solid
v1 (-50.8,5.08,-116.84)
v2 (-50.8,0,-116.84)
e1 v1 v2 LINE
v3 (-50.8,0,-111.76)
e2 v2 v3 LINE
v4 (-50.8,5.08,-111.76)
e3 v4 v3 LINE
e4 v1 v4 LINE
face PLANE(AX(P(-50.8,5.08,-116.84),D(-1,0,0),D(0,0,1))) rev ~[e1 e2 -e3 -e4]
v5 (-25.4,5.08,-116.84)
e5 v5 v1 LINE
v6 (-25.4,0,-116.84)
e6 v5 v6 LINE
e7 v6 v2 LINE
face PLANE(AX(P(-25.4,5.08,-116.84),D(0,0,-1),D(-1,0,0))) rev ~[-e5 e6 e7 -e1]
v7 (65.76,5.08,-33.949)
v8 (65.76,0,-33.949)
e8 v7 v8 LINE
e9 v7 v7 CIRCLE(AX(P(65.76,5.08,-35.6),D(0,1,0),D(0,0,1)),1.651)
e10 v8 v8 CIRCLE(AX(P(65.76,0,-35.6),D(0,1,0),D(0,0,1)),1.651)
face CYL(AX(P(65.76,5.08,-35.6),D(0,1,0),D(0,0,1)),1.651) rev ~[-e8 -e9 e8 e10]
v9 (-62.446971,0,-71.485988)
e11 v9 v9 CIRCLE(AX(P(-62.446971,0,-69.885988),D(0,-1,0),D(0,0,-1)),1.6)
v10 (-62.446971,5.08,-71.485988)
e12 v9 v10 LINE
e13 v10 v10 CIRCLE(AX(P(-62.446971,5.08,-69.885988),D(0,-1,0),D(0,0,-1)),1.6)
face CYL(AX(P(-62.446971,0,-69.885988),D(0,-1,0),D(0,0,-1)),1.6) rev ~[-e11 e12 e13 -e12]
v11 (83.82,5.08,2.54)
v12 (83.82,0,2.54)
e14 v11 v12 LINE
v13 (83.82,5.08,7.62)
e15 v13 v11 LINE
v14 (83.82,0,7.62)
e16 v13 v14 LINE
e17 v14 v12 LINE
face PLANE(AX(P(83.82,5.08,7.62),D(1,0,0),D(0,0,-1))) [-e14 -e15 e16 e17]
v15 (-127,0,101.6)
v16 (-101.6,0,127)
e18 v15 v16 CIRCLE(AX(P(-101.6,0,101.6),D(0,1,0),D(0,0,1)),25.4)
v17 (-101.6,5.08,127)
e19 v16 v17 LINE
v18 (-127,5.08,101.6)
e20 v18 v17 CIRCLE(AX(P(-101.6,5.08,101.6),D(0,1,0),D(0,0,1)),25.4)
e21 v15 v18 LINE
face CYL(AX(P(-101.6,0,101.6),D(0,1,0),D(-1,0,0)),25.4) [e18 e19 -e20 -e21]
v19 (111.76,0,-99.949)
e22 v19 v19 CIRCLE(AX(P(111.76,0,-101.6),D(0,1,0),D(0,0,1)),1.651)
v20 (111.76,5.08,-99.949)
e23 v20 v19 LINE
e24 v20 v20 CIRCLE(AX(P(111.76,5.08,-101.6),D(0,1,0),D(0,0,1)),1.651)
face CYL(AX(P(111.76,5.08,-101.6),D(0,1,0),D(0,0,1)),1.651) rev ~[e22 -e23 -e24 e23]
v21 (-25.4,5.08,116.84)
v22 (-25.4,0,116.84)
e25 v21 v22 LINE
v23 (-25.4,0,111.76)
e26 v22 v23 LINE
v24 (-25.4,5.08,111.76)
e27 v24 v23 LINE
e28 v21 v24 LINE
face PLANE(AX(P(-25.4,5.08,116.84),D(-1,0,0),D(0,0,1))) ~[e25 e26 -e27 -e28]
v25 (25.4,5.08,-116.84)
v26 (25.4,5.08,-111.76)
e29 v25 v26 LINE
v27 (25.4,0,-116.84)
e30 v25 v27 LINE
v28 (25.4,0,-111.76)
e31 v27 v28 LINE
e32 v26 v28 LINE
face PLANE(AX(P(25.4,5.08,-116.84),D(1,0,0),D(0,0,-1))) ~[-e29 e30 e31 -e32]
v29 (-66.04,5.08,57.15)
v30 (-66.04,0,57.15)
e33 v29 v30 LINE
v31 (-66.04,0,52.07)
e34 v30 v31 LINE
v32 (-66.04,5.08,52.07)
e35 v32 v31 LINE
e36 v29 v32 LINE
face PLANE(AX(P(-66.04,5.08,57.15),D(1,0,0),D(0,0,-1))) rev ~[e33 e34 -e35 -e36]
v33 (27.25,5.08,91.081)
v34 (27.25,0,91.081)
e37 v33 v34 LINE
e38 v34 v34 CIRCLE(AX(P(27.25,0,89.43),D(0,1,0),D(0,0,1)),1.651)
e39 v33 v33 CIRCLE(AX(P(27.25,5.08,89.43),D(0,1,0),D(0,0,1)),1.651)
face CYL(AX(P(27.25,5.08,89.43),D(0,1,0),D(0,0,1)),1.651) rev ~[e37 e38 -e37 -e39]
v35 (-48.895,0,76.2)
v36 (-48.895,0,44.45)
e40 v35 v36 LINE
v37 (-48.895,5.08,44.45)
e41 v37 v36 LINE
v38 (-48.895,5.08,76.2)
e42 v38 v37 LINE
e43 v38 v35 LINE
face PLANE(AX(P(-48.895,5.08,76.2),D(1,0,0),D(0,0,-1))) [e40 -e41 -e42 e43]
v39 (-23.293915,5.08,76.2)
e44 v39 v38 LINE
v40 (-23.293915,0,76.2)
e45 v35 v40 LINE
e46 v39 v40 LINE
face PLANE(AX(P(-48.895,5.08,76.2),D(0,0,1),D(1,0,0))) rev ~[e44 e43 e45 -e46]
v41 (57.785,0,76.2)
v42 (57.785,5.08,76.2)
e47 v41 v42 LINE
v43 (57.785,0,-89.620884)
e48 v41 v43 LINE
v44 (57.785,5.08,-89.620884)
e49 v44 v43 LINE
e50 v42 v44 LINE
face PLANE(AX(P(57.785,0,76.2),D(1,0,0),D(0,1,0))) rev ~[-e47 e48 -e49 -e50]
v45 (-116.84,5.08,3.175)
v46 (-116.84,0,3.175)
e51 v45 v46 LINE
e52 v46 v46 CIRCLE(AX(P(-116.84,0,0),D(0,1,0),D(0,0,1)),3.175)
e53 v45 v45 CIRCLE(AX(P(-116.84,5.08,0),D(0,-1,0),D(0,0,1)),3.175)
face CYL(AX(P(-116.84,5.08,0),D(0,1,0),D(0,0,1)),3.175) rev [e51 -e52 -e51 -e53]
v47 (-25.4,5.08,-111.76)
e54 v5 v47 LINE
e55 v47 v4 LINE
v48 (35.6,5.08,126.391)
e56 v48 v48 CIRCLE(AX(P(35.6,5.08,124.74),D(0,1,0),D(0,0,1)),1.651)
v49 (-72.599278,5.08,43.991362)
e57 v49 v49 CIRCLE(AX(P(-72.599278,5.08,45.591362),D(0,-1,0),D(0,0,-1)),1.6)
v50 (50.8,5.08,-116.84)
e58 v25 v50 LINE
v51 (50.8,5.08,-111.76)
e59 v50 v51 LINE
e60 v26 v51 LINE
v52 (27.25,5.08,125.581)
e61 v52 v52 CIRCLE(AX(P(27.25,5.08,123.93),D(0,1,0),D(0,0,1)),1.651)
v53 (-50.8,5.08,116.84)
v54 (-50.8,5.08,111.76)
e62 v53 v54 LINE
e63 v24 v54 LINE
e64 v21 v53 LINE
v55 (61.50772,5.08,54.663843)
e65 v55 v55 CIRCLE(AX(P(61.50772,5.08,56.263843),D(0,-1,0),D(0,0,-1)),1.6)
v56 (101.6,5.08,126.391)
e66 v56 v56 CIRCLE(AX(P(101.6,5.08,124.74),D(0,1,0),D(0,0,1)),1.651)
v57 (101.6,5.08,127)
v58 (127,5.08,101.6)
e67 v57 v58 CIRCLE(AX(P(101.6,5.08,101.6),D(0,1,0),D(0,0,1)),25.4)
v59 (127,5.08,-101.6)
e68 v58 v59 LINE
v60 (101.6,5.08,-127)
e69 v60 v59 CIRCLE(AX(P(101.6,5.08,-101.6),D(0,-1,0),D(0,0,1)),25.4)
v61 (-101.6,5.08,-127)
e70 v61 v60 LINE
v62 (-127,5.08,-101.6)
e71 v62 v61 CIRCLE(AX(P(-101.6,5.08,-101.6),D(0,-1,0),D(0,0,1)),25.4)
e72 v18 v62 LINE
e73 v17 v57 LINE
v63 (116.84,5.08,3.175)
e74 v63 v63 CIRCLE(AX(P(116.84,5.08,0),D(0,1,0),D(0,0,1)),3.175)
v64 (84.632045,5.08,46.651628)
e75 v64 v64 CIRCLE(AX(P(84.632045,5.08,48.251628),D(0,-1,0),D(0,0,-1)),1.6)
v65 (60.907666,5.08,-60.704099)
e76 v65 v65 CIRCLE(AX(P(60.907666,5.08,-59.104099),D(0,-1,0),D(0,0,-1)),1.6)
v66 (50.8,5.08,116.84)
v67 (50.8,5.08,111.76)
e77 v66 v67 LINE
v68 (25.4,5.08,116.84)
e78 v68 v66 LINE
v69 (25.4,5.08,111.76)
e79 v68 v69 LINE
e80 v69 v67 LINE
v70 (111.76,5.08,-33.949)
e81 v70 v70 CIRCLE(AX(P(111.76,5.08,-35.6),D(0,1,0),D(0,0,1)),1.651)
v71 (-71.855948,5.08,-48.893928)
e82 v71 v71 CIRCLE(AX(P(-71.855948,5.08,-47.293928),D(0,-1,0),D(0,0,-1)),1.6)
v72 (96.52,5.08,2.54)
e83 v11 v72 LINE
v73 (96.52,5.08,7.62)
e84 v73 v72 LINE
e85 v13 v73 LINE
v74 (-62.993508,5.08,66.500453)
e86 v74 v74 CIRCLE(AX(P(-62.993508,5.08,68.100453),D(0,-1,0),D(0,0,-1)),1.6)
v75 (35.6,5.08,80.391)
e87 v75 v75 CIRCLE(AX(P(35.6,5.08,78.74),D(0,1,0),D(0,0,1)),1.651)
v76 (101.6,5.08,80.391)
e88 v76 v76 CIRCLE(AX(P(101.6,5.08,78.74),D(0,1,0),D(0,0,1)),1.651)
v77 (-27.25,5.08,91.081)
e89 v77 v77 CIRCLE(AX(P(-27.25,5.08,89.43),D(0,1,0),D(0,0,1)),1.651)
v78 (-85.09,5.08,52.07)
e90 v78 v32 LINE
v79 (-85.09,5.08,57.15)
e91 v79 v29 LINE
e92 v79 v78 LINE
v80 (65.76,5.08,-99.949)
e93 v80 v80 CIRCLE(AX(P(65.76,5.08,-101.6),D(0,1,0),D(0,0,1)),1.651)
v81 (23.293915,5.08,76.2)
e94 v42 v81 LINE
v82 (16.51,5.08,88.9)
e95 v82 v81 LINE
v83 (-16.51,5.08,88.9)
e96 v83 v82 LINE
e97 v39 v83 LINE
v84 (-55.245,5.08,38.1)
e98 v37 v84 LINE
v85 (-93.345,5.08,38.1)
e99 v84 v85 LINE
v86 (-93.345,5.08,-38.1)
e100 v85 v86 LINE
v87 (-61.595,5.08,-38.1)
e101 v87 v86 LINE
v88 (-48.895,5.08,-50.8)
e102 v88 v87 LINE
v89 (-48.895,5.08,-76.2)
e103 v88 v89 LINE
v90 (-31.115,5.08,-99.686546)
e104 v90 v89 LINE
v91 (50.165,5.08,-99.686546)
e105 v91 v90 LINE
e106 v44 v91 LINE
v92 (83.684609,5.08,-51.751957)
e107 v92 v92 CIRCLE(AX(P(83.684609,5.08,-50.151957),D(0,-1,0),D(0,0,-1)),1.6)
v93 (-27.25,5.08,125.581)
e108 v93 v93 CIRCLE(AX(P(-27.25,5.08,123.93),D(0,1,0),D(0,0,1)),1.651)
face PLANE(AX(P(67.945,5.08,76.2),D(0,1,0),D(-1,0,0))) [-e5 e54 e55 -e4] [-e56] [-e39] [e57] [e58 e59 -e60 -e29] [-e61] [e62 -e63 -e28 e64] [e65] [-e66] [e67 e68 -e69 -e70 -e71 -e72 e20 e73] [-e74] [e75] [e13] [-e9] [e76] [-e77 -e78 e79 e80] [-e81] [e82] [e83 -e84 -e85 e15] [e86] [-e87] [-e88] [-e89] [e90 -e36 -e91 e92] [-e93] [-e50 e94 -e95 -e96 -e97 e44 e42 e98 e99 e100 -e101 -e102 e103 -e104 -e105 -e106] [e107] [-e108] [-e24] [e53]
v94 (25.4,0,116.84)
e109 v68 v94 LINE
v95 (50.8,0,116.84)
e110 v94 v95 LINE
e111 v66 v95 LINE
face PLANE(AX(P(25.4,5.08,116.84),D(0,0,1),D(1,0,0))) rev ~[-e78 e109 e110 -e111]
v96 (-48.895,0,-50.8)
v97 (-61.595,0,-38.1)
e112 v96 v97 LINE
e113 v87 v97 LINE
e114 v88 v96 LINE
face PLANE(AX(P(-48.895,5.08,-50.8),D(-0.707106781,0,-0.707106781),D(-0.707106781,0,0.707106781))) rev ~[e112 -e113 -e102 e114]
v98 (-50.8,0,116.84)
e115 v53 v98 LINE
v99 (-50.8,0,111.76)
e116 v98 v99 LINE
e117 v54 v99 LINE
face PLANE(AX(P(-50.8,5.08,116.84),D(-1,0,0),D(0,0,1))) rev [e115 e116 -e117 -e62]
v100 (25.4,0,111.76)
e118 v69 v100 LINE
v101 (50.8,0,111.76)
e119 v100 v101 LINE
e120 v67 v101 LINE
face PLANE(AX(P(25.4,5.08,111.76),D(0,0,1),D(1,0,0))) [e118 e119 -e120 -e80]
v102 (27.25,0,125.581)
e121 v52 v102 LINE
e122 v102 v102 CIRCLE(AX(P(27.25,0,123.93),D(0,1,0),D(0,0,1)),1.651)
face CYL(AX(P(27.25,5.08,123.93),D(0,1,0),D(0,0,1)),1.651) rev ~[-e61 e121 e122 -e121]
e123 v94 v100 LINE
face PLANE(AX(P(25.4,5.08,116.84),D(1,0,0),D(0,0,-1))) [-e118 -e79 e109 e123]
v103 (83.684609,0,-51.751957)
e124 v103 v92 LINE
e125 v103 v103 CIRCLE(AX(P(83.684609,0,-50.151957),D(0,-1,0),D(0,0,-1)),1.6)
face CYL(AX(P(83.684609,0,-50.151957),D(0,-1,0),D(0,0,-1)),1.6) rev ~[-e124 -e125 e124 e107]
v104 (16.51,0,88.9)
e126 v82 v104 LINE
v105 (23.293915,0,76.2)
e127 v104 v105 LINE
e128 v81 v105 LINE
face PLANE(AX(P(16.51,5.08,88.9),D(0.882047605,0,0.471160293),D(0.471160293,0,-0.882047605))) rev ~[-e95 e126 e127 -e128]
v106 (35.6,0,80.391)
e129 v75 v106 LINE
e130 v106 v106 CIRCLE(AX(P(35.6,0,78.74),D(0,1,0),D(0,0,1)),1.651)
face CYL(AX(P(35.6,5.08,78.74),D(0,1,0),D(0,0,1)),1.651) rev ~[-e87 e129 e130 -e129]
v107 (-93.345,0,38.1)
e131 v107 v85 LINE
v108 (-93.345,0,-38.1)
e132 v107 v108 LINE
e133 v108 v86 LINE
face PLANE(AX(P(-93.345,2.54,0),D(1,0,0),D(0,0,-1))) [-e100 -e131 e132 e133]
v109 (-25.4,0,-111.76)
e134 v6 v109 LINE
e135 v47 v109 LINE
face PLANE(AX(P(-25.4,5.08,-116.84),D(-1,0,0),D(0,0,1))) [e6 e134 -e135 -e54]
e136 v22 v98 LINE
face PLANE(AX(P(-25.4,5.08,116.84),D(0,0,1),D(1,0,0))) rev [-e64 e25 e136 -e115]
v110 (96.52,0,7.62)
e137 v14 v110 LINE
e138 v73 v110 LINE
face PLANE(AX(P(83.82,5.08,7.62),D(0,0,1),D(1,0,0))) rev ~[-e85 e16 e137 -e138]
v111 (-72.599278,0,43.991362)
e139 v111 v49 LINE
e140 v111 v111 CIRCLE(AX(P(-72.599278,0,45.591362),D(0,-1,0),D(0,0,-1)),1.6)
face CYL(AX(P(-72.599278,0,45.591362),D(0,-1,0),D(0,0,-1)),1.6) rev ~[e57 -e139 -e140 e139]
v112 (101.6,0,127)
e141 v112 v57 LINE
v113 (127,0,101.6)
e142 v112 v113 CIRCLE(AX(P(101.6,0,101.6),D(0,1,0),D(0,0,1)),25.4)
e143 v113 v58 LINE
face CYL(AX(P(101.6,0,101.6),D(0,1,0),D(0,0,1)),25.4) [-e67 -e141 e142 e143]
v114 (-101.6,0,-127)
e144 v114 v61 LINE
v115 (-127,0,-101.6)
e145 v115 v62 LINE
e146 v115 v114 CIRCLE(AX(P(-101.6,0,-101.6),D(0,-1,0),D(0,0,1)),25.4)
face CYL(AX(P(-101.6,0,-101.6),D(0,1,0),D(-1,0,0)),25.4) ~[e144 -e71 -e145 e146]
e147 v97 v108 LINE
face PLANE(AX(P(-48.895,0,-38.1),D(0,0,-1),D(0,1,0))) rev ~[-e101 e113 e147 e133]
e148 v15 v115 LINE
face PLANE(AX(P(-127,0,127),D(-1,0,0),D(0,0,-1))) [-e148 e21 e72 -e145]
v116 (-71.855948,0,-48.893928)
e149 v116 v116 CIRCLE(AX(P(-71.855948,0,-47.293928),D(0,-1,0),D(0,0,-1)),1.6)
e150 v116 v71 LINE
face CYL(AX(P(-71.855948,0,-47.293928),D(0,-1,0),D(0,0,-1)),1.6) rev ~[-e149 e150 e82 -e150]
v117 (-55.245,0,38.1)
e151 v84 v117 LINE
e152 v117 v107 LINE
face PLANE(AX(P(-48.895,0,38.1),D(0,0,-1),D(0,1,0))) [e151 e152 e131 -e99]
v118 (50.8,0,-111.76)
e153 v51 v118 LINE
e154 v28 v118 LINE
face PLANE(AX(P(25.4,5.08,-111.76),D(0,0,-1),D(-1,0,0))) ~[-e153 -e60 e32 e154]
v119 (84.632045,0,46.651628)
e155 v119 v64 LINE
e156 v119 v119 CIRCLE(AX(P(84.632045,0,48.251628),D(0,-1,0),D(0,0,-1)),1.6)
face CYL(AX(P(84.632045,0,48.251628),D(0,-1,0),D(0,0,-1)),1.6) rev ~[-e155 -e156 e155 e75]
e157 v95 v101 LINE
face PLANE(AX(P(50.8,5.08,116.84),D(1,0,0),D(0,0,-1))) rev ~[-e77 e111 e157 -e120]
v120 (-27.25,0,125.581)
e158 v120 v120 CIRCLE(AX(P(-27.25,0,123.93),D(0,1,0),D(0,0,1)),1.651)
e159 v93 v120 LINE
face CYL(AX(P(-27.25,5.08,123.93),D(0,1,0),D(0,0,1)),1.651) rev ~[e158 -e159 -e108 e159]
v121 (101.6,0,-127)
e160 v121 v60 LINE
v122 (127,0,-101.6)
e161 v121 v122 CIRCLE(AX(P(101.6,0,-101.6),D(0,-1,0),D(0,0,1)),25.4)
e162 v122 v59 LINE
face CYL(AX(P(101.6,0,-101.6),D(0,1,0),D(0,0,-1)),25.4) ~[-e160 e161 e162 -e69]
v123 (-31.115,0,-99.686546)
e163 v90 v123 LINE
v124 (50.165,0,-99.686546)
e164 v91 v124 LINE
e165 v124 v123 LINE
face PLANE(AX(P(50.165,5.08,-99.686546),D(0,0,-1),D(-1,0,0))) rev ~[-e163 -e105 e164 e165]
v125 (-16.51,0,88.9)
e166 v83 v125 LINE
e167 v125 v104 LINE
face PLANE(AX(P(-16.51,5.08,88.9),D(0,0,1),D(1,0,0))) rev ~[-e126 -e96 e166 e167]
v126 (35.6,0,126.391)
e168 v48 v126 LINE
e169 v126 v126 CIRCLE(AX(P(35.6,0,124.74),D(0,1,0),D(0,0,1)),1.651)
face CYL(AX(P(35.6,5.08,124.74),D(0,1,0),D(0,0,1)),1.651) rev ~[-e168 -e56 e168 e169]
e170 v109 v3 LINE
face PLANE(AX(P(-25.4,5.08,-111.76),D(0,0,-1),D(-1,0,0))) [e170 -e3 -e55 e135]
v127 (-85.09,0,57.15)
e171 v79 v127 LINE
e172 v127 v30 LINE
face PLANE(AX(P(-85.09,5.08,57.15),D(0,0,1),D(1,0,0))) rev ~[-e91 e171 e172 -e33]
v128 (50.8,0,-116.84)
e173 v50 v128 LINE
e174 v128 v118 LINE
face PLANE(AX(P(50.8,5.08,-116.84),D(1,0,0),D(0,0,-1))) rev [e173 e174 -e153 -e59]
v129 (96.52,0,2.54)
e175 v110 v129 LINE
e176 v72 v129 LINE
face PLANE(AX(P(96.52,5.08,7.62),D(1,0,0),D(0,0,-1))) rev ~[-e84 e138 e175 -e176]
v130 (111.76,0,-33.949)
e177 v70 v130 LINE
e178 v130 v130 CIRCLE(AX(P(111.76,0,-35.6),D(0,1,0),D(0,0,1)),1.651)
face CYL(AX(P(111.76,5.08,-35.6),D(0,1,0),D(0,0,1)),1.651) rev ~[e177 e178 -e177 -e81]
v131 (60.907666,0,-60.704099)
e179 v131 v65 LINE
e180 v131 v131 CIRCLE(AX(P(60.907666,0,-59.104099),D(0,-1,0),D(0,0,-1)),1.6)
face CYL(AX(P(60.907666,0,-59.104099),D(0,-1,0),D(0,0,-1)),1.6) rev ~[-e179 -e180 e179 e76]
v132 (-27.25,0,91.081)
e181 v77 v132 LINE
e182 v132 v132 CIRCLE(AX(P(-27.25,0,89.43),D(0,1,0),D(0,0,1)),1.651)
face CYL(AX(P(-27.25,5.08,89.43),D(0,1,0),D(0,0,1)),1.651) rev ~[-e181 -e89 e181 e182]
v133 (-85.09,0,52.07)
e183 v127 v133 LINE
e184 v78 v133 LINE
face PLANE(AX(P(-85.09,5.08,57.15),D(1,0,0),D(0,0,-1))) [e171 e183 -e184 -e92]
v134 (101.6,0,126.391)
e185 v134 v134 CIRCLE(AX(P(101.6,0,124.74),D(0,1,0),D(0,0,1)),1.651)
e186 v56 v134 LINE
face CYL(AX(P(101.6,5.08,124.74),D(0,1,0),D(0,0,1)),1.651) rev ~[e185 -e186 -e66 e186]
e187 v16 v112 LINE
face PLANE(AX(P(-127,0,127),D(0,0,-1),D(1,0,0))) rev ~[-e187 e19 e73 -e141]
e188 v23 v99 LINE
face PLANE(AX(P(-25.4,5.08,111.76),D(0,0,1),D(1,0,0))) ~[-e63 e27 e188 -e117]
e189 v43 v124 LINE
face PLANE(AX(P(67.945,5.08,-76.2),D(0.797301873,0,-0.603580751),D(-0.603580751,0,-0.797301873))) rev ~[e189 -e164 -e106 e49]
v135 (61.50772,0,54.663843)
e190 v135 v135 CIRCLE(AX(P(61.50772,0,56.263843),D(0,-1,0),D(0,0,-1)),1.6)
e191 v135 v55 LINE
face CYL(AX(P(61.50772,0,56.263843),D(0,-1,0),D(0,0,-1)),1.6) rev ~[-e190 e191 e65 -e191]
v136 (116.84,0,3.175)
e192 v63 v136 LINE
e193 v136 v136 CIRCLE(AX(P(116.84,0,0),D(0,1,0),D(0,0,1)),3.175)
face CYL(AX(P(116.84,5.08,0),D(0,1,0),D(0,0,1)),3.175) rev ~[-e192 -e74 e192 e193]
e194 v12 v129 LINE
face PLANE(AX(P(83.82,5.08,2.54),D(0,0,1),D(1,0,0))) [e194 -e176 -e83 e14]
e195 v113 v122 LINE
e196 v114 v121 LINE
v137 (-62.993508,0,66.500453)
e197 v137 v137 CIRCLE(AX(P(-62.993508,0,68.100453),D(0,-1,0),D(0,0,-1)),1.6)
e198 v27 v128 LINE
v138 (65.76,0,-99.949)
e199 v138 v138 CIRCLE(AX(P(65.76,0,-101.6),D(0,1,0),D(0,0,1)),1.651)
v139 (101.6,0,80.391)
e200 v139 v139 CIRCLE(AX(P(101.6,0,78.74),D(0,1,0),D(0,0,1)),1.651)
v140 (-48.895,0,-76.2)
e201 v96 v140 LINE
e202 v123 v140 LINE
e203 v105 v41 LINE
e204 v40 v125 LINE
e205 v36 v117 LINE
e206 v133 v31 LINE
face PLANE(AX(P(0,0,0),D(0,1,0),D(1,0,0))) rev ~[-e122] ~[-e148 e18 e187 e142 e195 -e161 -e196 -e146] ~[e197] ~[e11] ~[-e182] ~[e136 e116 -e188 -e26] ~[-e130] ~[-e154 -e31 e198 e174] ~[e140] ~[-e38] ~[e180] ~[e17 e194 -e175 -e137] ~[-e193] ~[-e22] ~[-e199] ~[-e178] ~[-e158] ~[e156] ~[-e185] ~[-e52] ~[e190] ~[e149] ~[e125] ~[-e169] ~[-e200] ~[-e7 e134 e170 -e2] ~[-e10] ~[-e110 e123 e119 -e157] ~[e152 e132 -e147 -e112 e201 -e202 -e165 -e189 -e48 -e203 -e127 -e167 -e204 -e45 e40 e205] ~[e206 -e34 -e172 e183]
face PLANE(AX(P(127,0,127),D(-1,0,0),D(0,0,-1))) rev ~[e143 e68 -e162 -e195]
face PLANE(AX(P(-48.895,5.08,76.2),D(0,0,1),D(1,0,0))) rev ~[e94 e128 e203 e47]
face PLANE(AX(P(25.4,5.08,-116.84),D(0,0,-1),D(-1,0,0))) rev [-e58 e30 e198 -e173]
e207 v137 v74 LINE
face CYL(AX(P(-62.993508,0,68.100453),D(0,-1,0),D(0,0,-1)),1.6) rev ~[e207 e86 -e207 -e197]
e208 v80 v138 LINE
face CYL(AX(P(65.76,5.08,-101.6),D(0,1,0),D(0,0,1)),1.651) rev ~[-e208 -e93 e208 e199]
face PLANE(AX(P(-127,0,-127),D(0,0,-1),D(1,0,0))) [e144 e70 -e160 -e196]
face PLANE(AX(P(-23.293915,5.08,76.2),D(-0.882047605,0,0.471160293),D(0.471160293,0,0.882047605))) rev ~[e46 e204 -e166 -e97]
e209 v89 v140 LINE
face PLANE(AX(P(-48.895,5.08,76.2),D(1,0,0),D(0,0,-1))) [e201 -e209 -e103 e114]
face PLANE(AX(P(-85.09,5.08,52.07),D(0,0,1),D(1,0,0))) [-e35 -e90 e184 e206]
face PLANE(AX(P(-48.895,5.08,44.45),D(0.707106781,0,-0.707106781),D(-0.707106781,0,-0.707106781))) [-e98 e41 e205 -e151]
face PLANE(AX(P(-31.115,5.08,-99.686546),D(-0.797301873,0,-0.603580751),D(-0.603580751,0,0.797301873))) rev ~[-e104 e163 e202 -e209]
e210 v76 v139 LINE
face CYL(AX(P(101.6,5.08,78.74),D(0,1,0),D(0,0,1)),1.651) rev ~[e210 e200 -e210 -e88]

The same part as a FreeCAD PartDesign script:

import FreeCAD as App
import Part
import Sketcher
Q = App.Units.Quantity


def edges_at(feature, points):
    """Names of the edges that pass closest to the given points."""
    edges = feature.Shape.Edges
    near = lambda p: min(range(len(edges)), key=lambda i: edges[i].distToShape(Part.Vertex(*p))[0])
    return sorted({f"Edge{near(p) + 1}" for p in points})

doc = App.newDocument("Part")
body = doc.addObject("PartDesign::Body", "Body")

# Sketch on XZ plane
sketch1 = body.newObject("Sketcher::SketchObject", "Sketch")
sketch1.AttachmentSupport = (doc.getObject("XZ_Plane"), [""])
sketch1.MapMode = "FlatFace"
sketch1.addGeometry([
    Part.LineSegment(App.Vector(-127, -127, 0), App.Vector(-127, 127, 0)),
    Part.LineSegment(App.Vector(-127, 127, 0), App.Vector(127, 127, 0)),
    Part.LineSegment(App.Vector(127, 127, 0), App.Vector(127, -127, 0)),
    Part.LineSegment(App.Vector(127, -127, 0), App.Vector(-127, -127, 0)),
], False)
sketch1.addConstraint([
    Sketcher.Constraint("Coincident", 0, 2, 1, 1),
    Sketcher.Constraint("Coincident", 1, 2, 2, 1),
    Sketcher.Constraint("Coincident", 2, 2, 3, 1),
    Sketcher.Constraint("Coincident", 3, 2, 0, 1),
    Sketcher.Constraint("Vertical", 0),
    Sketcher.Constraint("Horizontal", 1),
    Sketcher.Constraint("Vertical", 2),
    Sketcher.Constraint("Horizontal", 3),
    Sketcher.Constraint("Symmetric", 0, 2, 2, 2, -1, 1),
    Sketcher.Constraint("Equal", 3, 0),
    Sketcher.Constraint("DistanceX", 1, 1, 1, 2, Q("10 in")),
])
pad1 = body.newObject("PartDesign::Pad", "Pad")
pad1.Profile = sketch1
pad1.Length = Q("0.2 in")
pad1.Reversed = True

# Sketch on XZ plane
sketch2 = body.newObject("Sketcher::SketchObject", "Sketch001")
sketch2.AttachmentSupport = (doc.getObject("XZ_Plane"), [""])
sketch2.MapMode = "FlatFace"
sketch2.AttachmentOffset = App.Placement(App.Vector(0, 0, -0.2 * 25.4), App.Rotation())
sketch2.addGeometry([
    Part.LineSegment(App.Vector(-49, -76, 0), App.Vector(-49, 76, 0)),
    Part.LineSegment(App.Vector(-49, 76, 0), App.Vector(49, 76, 0)),
    Part.LineSegment(App.Vector(49, 76, 0), App.Vector(49, -76, 0)),
    Part.LineSegment(App.Vector(49, -76, 0), App.Vector(-49, -76, 0)),
], False)
sketch2.addConstraint([
    Sketcher.Constraint("Coincident", 0, 2, 1, 1),
    Sketcher.Constraint("Coincident", 1, 2, 2, 1),
    Sketcher.Constraint("Coincident", 2, 2, 3, 1),
    Sketcher.Constraint("Coincident", 3, 2, 0, 1),
    Sketcher.Constraint("Vertical", 0),
    Sketcher.Constraint("Horizontal", 1),
    Sketcher.Constraint("Vertical", 2),
    Sketcher.Constraint("Horizontal", 3),
    Sketcher.Constraint("Symmetric", 0, 2, 2, 2, -1, 1),
    Sketcher.Constraint("DistanceY", 0, 1, 0, 2, Q("6 in")),
    Sketcher.Constraint("DistanceX", 1, 1, 1, 2, Q("3.85 in")),
])
pocket1 = body.newObject("PartDesign::Pocket", "Pocket")
pocket1.Profile = sketch2
pocket1.Type = "ThroughAll"
pocket1.Reversed = True

# Sketch on XZ plane
sketch3 = body.newObject("Sketcher::SketchObject", "Sketch002")
sketch3.AttachmentSupport = (doc.getObject("XZ_Plane"), [""])
sketch3.MapMode = "FlatFace"
sketch3.AttachmentOffset = App.Placement(App.Vector(0, 0, -0.2 * 25.4), App.Rotation())
sketch3.addGeometry([
    Part.LineSegment(App.Vector(25, 112, 0), App.Vector(25, 117, 0)),
    Part.LineSegment(App.Vector(25, 117, 0), App.Vector(51, 117, 0)),
    Part.LineSegment(App.Vector(51, 117, 0), App.Vector(51, 112, 0)),
    Part.LineSegment(App.Vector(51, 112, 0), App.Vector(25, 112, 0)),
], False)
sketch3.addConstraint([
    Sketcher.Constraint("Coincident", 0, 2, 1, 1),
    Sketcher.Constraint("Coincident", 1, 2, 2, 1),
    Sketcher.Constraint("Coincident", 2, 2, 3, 1),
    Sketcher.Constraint("Coincident", 3, 2, 0, 1),
    Sketcher.Constraint("Vertical", 0),
    Sketcher.Constraint("Horizontal", 1),
    Sketcher.Constraint("Vertical", 2),
    Sketcher.Constraint("Horizontal", 3),
    Sketcher.Constraint("DistanceX", 1, 1, 1, 2, Q("1 in")),
    Sketcher.Constraint("DistanceY", 0, 1, 0, 2, Q("0.2 in")),
    Sketcher.Constraint("DistanceX", -1, 1, 0, 2, Q("1 in")),
    Sketcher.Constraint("DistanceY", -1, 1, 0, 2, Q("4.6 in")),
])
pocket2 = body.newObject("PartDesign::Pocket", "Pocket001")
pocket2.Profile = sketch3
pocket2.Type = "ThroughAll"
pocket2.Reversed = True
doc.recompute()

mirrored = body.newObject("PartDesign::Mirrored", "Mirrored")
mirrored.Originals = [pocket2]
mirrored.MirrorPlane = (doc.getObject("XY_Plane"), [""])
body.Tip = mirrored
doc.recompute()

fillet = body.newObject("PartDesign::Fillet", "Fillet")
fillet.Base = (mirrored, edges_at(mirrored, [
    (127, 2.54, 127),
    (-127, 2.54, 127),
    (-127, 2.54, -127),
    (127, 2.54, -127),
]))
fillet.Radius = Q("1 in")
doc.recompute()

mirrored2 = body.newObject("PartDesign::Mirrored", "Mirrored001")
mirrored2.Originals = [pocket2]
mirrored2.MirrorPlane = (doc.getObject("YZ_Plane"), [""])
body.Tip = mirrored2

# Sketch on XZ plane
sketch4 = body.newObject("Sketcher::SketchObject", "Sketch003")
sketch4.AttachmentSupport = (doc.getObject("XZ_Plane"), [""])
sketch4.MapMode = "FlatFace"
sketch4.AttachmentOffset = App.Placement(App.Vector(0, 0, -0.2 * 25.4), App.Rotation())
sketch4.addGeometry([
    Part.LineSegment(App.Vector(-25, -112, 0), App.Vector(-25, -117, 0)),
    Part.LineSegment(App.Vector(-25, -117, 0), App.Vector(-51, -117, 0)),
    Part.LineSegment(App.Vector(-51, -117, 0), App.Vector(-51, -112, 0)),
    Part.LineSegment(App.Vector(-51, -112, 0), App.Vector(-25, -112, 0)),
], False)
sketch4.addConstraint([
    Sketcher.Constraint("Coincident", 0, 2, 1, 1),
    Sketcher.Constraint("Coincident", 1, 2, 2, 1),
    Sketcher.Constraint("Coincident", 2, 2, 3, 1),
    Sketcher.Constraint("Coincident", 3, 2, 0, 1),
    Sketcher.Constraint("Vertical", 0),
    Sketcher.Constraint("Horizontal", 1),
    Sketcher.Constraint("Vertical", 2),
    Sketcher.Constraint("Horizontal", 3),
    Sketcher.Constraint("DistanceX", 1, 2, 1, 1, Q("1 in")),
    Sketcher.Constraint("DistanceY", 0, 2, 0, 1, Q("0.2 in")),
    Sketcher.Constraint("DistanceX", 0, 2, -1, 1, Q("1 in")),
    Sketcher.Constraint("DistanceY", 0, 2, -1, 1, Q("4.6 in")),
])
pocket3 = body.newObject("PartDesign::Pocket", "Pocket002")
pocket3.Profile = sketch4
pocket3.Type = "ThroughAll"
pocket3.Reversed = True

# Sketch on XZ plane
sketch5 = body.newObject("Sketcher::SketchObject", "Sketch004")
sketch5.AttachmentSupport = (doc.getObject("XZ_Plane"), [""])
sketch5.MapMode = "FlatFace"
sketch5.AttachmentOffset = App.Placement(App.Vector(0, 0, -0.2 * 25.4), App.Rotation())
sketch5.addGeometry(Part.Circle(App.Vector(116.8, 0, 0), App.Vector(0, 0, 1), 3.2), False)
sketch5.addConstraint([
    Sketcher.Constraint("PointOnObject", 0, 3, -1),
    Sketcher.Constraint("Diameter", 0, Q("0.25 in")),
    Sketcher.Constraint("DistanceX", -1, 1, 0, 3, Q("4.6 in")),
])
pocket4 = body.newObject("PartDesign::Pocket", "Pocket003")
pocket4.Profile = sketch5
pocket4.Type = "ThroughAll"
pocket4.Reversed = True
doc.recompute()

mirrored3 = body.newObject("PartDesign::Mirrored", "Mirrored002")
mirrored3.Originals = [pocket4]
mirrored3.MirrorPlane = (doc.getObject("YZ_Plane"), [""])
body.Tip = mirrored3

# Sketch on XZ plane
sketch6 = body.newObject("Sketcher::SketchObject", "Sketch005")
sketch6.AttachmentSupport = (doc.getObject("XZ_Plane"), [""])
sketch6.MapMode = "FlatFace"
sketch6.AttachmentOffset = App.Placement(App.Vector(0, 0, -0.2 * 25.4), App.Rotation())
sketch6.addGeometry([
    Part.LineSegment(App.Vector(84, 3, 0), App.Vector(84, 8, 0)),
    Part.LineSegment(App.Vector(84, 8, 0), App.Vector(97, 8, 0)),
    Part.LineSegment(App.Vector(97, 8, 0), App.Vector(97, 3, 0)),
    Part.LineSegment(App.Vector(97, 3, 0), App.Vector(84, 3, 0)),
], False)
sketch6.addConstraint([
    Sketcher.Constraint("Coincident", 0, 2, 1, 1),
    Sketcher.Constraint("Coincident", 1, 2, 2, 1),
    Sketcher.Constraint("Coincident", 2, 2, 3, 1),
    Sketcher.Constraint("Coincident", 3, 2, 0, 1),
    Sketcher.Constraint("Vertical", 0),
    Sketcher.Constraint("Horizontal", 1),
    Sketcher.Constraint("Vertical", 2),
    Sketcher.Constraint("Horizontal", 3),
    Sketcher.Constraint("DistanceX", 1, 1, 1, 2, Q("0.5 in")),
    Sketcher.Constraint("DistanceY", 0, 1, 0, 2, Q("0.2 in")),
    Sketcher.Constraint("DistanceX", -1, 1, 0, 2, Q("3.3 in")),
    Sketcher.Constraint("DistanceY", -1, 1, 0, 2, Q("0.3 in")),
])
pocket5 = body.newObject("PartDesign::Pocket", "Pocket004")
pocket5.Profile = sketch6
pocket5.Type = "ThroughAll"
pocket5.Reversed = True

# Sketch on XZ plane
sketch7 = body.newObject("Sketcher::SketchObject", "Sketch006")
sketch7.AttachmentSupport = (doc.getObject("XZ_Plane"), [""])
sketch7.MapMode = "FlatFace"
sketch7.AttachmentOffset = App.Placement(App.Vector(0, 0, -0.2 * 25.4), App.Rotation())
sketch7.addGeometry([
    Part.LineSegment(App.Vector(-85, 52, 0), App.Vector(-85, 57, 0)),
    Part.LineSegment(App.Vector(-85, 57, 0), App.Vector(-66, 57, 0)),
    Part.LineSegment(App.Vector(-66, 57, 0), App.Vector(-66, 52, 0)),
    Part.LineSegment(App.Vector(-66, 52, 0), App.Vector(-85, 52, 0)),
], False)
sketch7.addConstraint([
    Sketcher.Constraint("Coincident", 0, 2, 1, 1),
    Sketcher.Constraint("Coincident", 1, 2, 2, 1),
    Sketcher.Constraint("Coincident", 2, 2, 3, 1),
    Sketcher.Constraint("Coincident", 3, 2, 0, 1),
    Sketcher.Constraint("Vertical", 0),
    Sketcher.Constraint("Horizontal", 1),
    Sketcher.Constraint("Vertical", 2),
    Sketcher.Constraint("Horizontal", 3),
    Sketcher.Constraint("DistanceY", 0, 1, 0, 2, Q("0.2 in")),
    Sketcher.Constraint("DistanceX", 1, 1, 1, 2, Q("0.75 in")),
    Sketcher.Constraint("DistanceX", 1, 2, -1, 1, Q("2.6 in")),
    Sketcher.Constraint("DistanceY", -1, 1, 0, 2, Q("2.25 in")),
])
pocket6 = body.newObject("PartDesign::Pocket", "Pocket005")
pocket6.Profile = sketch7
pocket6.Length = Q("0.65 in")
pocket6.Reversed = True

# Sketch on YZ plane
sketch8 = body.newObject("Sketcher::SketchObject", "Sketch007")
sketch8.AttachmentSupport = (doc.getObject("YZ_Plane"), [""])
sketch8.MapMode = "FlatFace"
sketch8.AttachmentOffset = App.Placement(App.Vector(0, 0, 1.925 * 25.4), App.Rotation())
sketch8.addGeometry([
    Part.LineSegment(App.Vector(8, -76, 0), App.Vector(0, -76, 0)),
    Part.LineSegment(App.Vector(0, -76, 0), App.Vector(0, 76, 0)),
    Part.LineSegment(App.Vector(0, 76, 0), App.Vector(8, 76, 0)),
    Part.LineSegment(App.Vector(8, 76, 0), App.Vector(8, -76, 0)),
], False)
sketch8.addConstraint([
    Sketcher.Constraint("Coincident", 0, 2, 1, 1),
    Sketcher.Constraint("Coincident", 1, 2, 2, 1),
    Sketcher.Constraint("Coincident", 2, 2, 3, 1),
    Sketcher.Constraint("Coincident", 3, 2, 0, 1),
    Sketcher.Constraint("Horizontal", 0),
    Sketcher.Constraint("Vertical", 1),
    Sketcher.Constraint("Horizontal", 2),
    Sketcher.Constraint("Vertical", 3),
    Sketcher.Constraint("DistanceY", 1, 1, 1, 2, Q("6 in")),
    Sketcher.Constraint("DistanceY", 0, 2, -1, 1, Q("3 in")),
    Sketcher.Constraint("DistanceX", -1, 1, 2, 2, Q("0.3 in")),
    Sketcher.Constraint("DistanceX", 0, 2, 0, 1, 8.030698),
])
pocket7 = body.newObject("PartDesign::Pocket", "Pocket006")
pocket7.Profile = sketch8
pocket7.Length = Q("0.75 in")
pocket7.Reversed = True

# Sketch on YZ plane
sketch9 = body.newObject("Sketcher::SketchObject", "Sketch008")
sketch9.AttachmentSupport = (doc.getObject("YZ_Plane"), [""])
sketch9.MapMode = "FlatFace"
sketch9.AttachmentOffset = App.Placement(App.Vector(0, 0, -1.925 * 25.4), App.Rotation())
sketch9.addGeometry([
    Part.LineSegment(App.Vector(5, 38, 0), App.Vector(0, 38, 0)),
    Part.LineSegment(App.Vector(0, 38, 0), App.Vector(0, -38, 0)),
    Part.LineSegment(App.Vector(0, -38, 0), App.Vector(5, -38, 0)),
    Part.LineSegment(App.Vector(5, -38, 0), App.Vector(5, 38, 0)),
], False)
sketch9.addConstraint([
    Sketcher.Constraint("Coincident", 0, 2, 1, 1),
    Sketcher.Constraint("Coincident", 1, 2, 2, 1),
    Sketcher.Constraint("Coincident", 2, 2, 3, 1),
    Sketcher.Constraint("Coincident", 3, 2, 0, 1),
    Sketcher.Constraint("Horizontal", 0),
    Sketcher.Constraint("Vertical", 1),
    Sketcher.Constraint("Horizontal", 2),
    Sketcher.Constraint("Vertical", 3),
    Sketcher.Constraint("Symmetric", 0, 2, 1, 2, -1, 1),
    Sketcher.Constraint("DistanceY", 1, 2, 1, 1, Q("3 in")),
    Sketcher.Constraint("DistanceX", 0, 2, 0, 1, Q("0.2 in")),
])
pocket8 = body.newObject("PartDesign::Pocket", "Pocket007")
pocket8.Profile = sketch9
pocket8.Length = Q("1.75 in")

# Sketch on XZ plane
sketch10 = body.newObject("Sketcher::SketchObject", "Sketch009")
sketch10.AttachmentSupport = (doc.getObject("XZ_Plane"), [""])
sketch10.MapMode = "FlatFace"
sketch10.AttachmentOffset = App.Placement(App.Vector(0, 0, -0.2 * 25.4), App.Rotation())
sketch10.addGeometry([
    Part.LineSegment(App.Vector(-49, -76, 0), App.Vector(-27, -34, 0)),  # 0
    Part.LineSegment(App.Vector(-27, -34, 0), App.Vector(68, -76, 0)),  # 1
    Part.LineSegment(App.Vector(68, -76, 0), App.Vector(50, -100, 0)),  # 2
    Part.LineSegment(App.Vector(50, -100, 0), App.Vector(-31, -100, 0)),  # 3
    Part.LineSegment(App.Vector(-31, -100, 0), App.Vector(-49, -76, 0)),  # 4
], False)
sketch10.addConstraint([
    Sketcher.Constraint("Coincident", 0, 2, 1, 1),
    Sketcher.Constraint("Coincident", 1, 2, 2, 1),
    Sketcher.Constraint("Coincident", 2, 2, 3, 1),
    Sketcher.Constraint("Coincident", 3, 2, 4, 1),
    Sketcher.Constraint("Coincident", 4, 2, 0, 1),
    Sketcher.Constraint("Horizontal", 3),
    Sketcher.Constraint("Horizontal", 1, 2, 4, 2),
    Sketcher.Constraint("Equal", 2, 4),
    Sketcher.Constraint("DistanceX", 3, 2, 3, 1, Q("3.2 in")),
    Sketcher.Constraint("DistanceY", 1, 2, -1, 1, Q("3 in")),
    Sketcher.Constraint("DistanceX", 2, 2, 1, 2, Q("0.7 in")),
    Sketcher.Constraint("DistanceX", -1, 1, 1, 2, Q("2.675 in")),
    Sketcher.Constraint("Distance", 1, 103.396229),
    Sketcher.Constraint("DistanceY", 2, 2, 0, 2, 65.305681),
    Sketcher.Constraint("Distance", 0, 47.383085),
])
pocket9 = body.newObject("PartDesign::Pocket", "Pocket008")
pocket9.Profile = sketch10
pocket9.Type = "ThroughAll"
pocket9.Reversed = True

# Sketch on XZ plane
sketch11 = body.newObject("Sketcher::SketchObject", "Sketch010")
sketch11.AttachmentSupport = (doc.getObject("XZ_Plane"), [""])
sketch11.MapMode = "FlatFace"
sketch11.AttachmentOffset = App.Placement(App.Vector(0, 0, -0.2 * 25.4), App.Rotation())
sketch11.addGeometry([
    Part.LineSegment(App.Vector(-49, -38, 0), App.Vector(-49, -51, 0)),
    Part.LineSegment(App.Vector(-49, -51, 0), App.Vector(-62, -38, 0)),
    Part.LineSegment(App.Vector(-62, -38, 0), App.Vector(-49, -38, 0)),
], False)
sketch11.addConstraint([
    Sketcher.Constraint("Coincident", 0, 2, 1, 1),
    Sketcher.Constraint("Coincident", 1, 2, 2, 1),
    Sketcher.Constraint("Coincident", 2, 2, 0, 1),
    Sketcher.Constraint("Vertical", 0),
    Sketcher.Constraint("Horizontal", 2),
    Sketcher.Constraint("Equal", 2, 0),
    Sketcher.Constraint("DistanceX", 2, 1, 2, 2, Q("0.5 in")),
    Sketcher.Constraint("DistanceY", 0, 2, -1, 1, Q("2 in")),
    Sketcher.Constraint("DistanceX", 0, 2, -1, 1, Q("1.925 in")),
])
pocket10 = body.newObject("PartDesign::Pocket", "Pocket009")
pocket10.Profile = sketch11
pocket10.Type = "ThroughAll"
pocket10.Reversed = True

# Sketch on XZ plane
sketch12 = body.newObject("Sketcher::SketchObject", "Sketch011")
sketch12.AttachmentSupport = (doc.getObject("XZ_Plane"), [""])
sketch12.MapMode = "FlatFace"
sketch12.AttachmentOffset = App.Placement(App.Vector(0, 0, -0.2 * 25.4), App.Rotation())
sketch12.addGeometry([
    Part.LineSegment(App.Vector(-49, 44, 0), App.Vector(-49, 38, 0)),
    Part.LineSegment(App.Vector(-49, 38, 0), App.Vector(-55, 38, 0)),
    Part.LineSegment(App.Vector(-55, 38, 0), App.Vector(-49, 44, 0)),
], False)
sketch12.addConstraint([
    Sketcher.Constraint("Coincident", 0, 2, 1, 1),
    Sketcher.Constraint("Coincident", 1, 2, 2, 1),
    Sketcher.Constraint("Coincident", 2, 2, 0, 1),
    Sketcher.Constraint("Vertical", 0),
    Sketcher.Constraint("Horizontal", 1),
    Sketcher.Constraint("Equal", 1, 0),
    Sketcher.Constraint("DistanceX", 1, 2, 1, 1, Q("0.25 in")),
    Sketcher.Constraint("DistanceY", -1, 1, 0, 2, Q("1.5 in")),
    Sketcher.Constraint("DistanceX", 0, 2, -1, 1, Q("1.925 in")),
])
pocket11 = body.newObject("PartDesign::Pocket", "Pocket010")
pocket11.Profile = sketch12
pocket11.Type = "ThroughAll"
pocket11.Reversed = True

# Sketch on XZ plane
sketch13 = body.newObject("Sketcher::SketchObject", "Sketch012")
sketch13.AttachmentSupport = (doc.getObject("XZ_Plane"), [""])
sketch13.MapMode = "FlatFace"
sketch13.AttachmentOffset = App.Placement(App.Vector(0, 0, -0.2 * 25.4), App.Rotation())
sketch13.addGeometry([
    Part.LineSegment(App.Vector(17, 89, 0), App.Vector(23, 76, 0)),  # 0
    Part.LineSegment(App.Vector(23, 76, 0), App.Vector(-6, 48, 0)),  # 1
    Part.LineSegment(App.Vector(-6, 48, 0), App.Vector(-23, 76, 0)),  # 2
    Part.LineSegment(App.Vector(-23, 76, 0), App.Vector(-17, 89, 0)),  # 3
    Part.LineSegment(App.Vector(-17, 89, 0), App.Vector(17, 89, 0)),  # 4
], False)
sketch13.addConstraint([
    Sketcher.Constraint("Coincident", 0, 2, 1, 1),
    Sketcher.Constraint("Coincident", 1, 2, 2, 1),
    Sketcher.Constraint("Coincident", 2, 2, 3, 1),
    Sketcher.Constraint("Coincident", 3, 2, 4, 1),
    Sketcher.Constraint("Coincident", 4, 2, 0, 1),
    Sketcher.Constraint("Horizontal", 4),
    Sketcher.Constraint("Symmetric", 0, 2, 2, 2, -2),
    Sketcher.Constraint("Equal", 0, 3),
    Sketcher.Constraint("DistanceX", 4, 1, 4, 2, Q("1.3 in")),
    Sketcher.Constraint("DistanceY", -1, 1, 0, 2, Q("3 in")),
    Sketcher.Constraint("DistanceY", -1, 1, 3, 2, Q("3.5 in")),
    Sketcher.Constraint("DistanceY", -1, 1, 1, 2, 47.784601),
    Sketcher.Constraint("Distance", 1, 40.552531),
    Sketcher.Constraint("DistanceX", 2, 2, 0, 2, 46.587829),
])
pocket12 = body.newObject("PartDesign::Pocket", "Pocket011")
pocket12.Profile = sketch13
pocket12.Type = "ThroughAll"
pocket12.Reversed = True

# Sketch on XY plane
sketch14 = body.newObject("Sketcher::SketchObject", "Sketch013")
sketch14.AttachmentSupport = (doc.getObject("XY_Plane"), [""])
sketch14.MapMode = "FlatFace"
sketch14.AttachmentOffset = App.Placement(App.Vector(0, 0, 3 * 25.4), App.Rotation())
sketch14.addGeometry([
    Part.LineSegment(App.Vector(68, 5, 0), App.Vector(68, 0, 0)),
    Part.LineSegment(App.Vector(68, 0, 0), App.Vector(58, 0, 0)),
    Part.LineSegment(App.Vector(58, 0, 0), App.Vector(58, 5, 0)),
    Part.LineSegment(App.Vector(58, 5, 0), App.Vector(68, 5, 0)),
], False)
sketch14.addConstraint([
    Sketcher.Constraint("Coincident", 0, 2, 1, 1),
    Sketcher.Constraint("Coincident", 1, 2, 2, 1),
    Sketcher.Constraint("Coincident", 2, 2, 3, 1),
    Sketcher.Constraint("Coincident", 3, 2, 0, 1),
    Sketcher.Constraint("Vertical", 0),
    Sketcher.Constraint("Horizontal", 1),
    Sketcher.Constraint("Vertical", 2),
    Sketcher.Constraint("Horizontal", 3),
    Sketcher.Constraint("PointOnObject", 0, 2, -1),
    Sketcher.Constraint("DistanceX", 1, 2, 1, 1, Q("0.4 in")),
    Sketcher.Constraint("DistanceY", 0, 2, 0, 1, Q("0.2 in")),
    Sketcher.Constraint("DistanceX", -1, 1, 0, 2, Q("2.675 in")),
])
pad2 = body.newObject("PartDesign::Pad", "Pad001")
pad2.Profile = sketch14
pad2.Length = Q("7 in")
pad2.Reversed = True

# Sketch on XZ plane
sketch15 = body.newObject("Sketcher::SketchObject", "Sketch014")
sketch15.AttachmentSupport = (doc.getObject("XZ_Plane"), [""])
sketch15.MapMode = "FlatFace"
sketch15.addGeometry([
    Part.Circle(App.Vector(-63, 68.1, 0), App.Vector(0, 0, 1), 1.6),  # 0
    Part.Circle(App.Vector(-72.6, 45.6, 0), App.Vector(0, 0, 1), 1.6),  # 1
    Part.Circle(App.Vector(-71.9, -47.3, 0), App.Vector(0, 0, 1), 1.6),  # 2
    Part.Circle(App.Vector(-62.4, -69.9, 0), App.Vector(0, 0, 1), 1.6),  # 3
    Part.Circle(App.Vector(60.9, -59.1, 0), App.Vector(0, 0, 1), 1.6),  # 4
    Part.Circle(App.Vector(83.7, -50.2, 0), App.Vector(0, 0, 1), 1.6),  # 5
    Part.Circle(App.Vector(84.6, 48.3, 0), App.Vector(0, 0, 1), 1.6),  # 6
    Part.Circle(App.Vector(61.5, 56.3, 0), App.Vector(0, 0, 1), 1.6),  # 7
], False)
sketch15.addConstraint([
    Sketcher.Constraint("Equal", 0, 1),
    Sketcher.Constraint("Equal", 1, 2),
    Sketcher.Constraint("Equal", 2, 3),
    Sketcher.Constraint("Equal", 3, 4),
    Sketcher.Constraint("Equal", 4, 5),
    Sketcher.Constraint("Equal", 5, 6),
    Sketcher.Constraint("Equal", 6, 7),
    Sketcher.Constraint("Diameter", 0, 3.2),
    Sketcher.Constraint("DistanceY", 4, 3, -1, 1, 59.104099),
    Sketcher.Constraint("DistanceY", 5, 3, 7, 3, 106.4158),
    Sketcher.Constraint("DistanceX", 1, 3, 7, 3, 134.106998),
    Sketcher.Constraint("DistanceX", 2, 3, -1, 1, 71.855948),
    Sketcher.Constraint("DistanceY", 2, 3, -1, 1, 47.293928),
    Sketcher.Constraint("DistanceX", 3, 3, -1, 1, 62.446971),
    Sketcher.Constraint("DistanceX", -1, 1, 5, 3, 83.684609),
    Sketcher.Constraint("DistanceX", -1, 1, 7, 3, 61.50772),
    Sketcher.Constraint("DistanceX", 1, 3, 0, 3, 9.60577),
    Sketcher.Constraint("DistanceY", 1, 3, 0, 3, 22.509091),
    Sketcher.Constraint("DistanceY", 2, 3, 1, 3, 92.88529),
    Sketcher.Constraint("DistanceY", 3, 3, 2, 3, 22.592059),
    Sketcher.Constraint("DistanceY", 3, 3, 5, 3, 19.734031),
    Sketcher.Constraint("DistanceX", 4, 3, 6, 3, 23.724379),
    Sketcher.Constraint("DistanceX", -1, 1, 4, 3, 60.907666),
    Sketcher.Constraint("DistanceY", -1, 1, 6, 3, 48.251628),
])
pocket13 = body.newObject("PartDesign::Pocket", "Pocket012")
pocket13.Profile = sketch15
pocket13.Type = "ThroughAll"

# Sketch on XZ plane
sketch16 = body.newObject("Sketcher::SketchObject", "Sketch015")
sketch16.AttachmentSupport = (doc.getObject("XZ_Plane"), [""])
sketch16.MapMode = "FlatFace"
sketch16.AttachmentOffset = App.Placement(App.Vector(0, 0, -0.2 * 25.4), App.Rotation())
sketch16.addGeometry([
    Part.Circle(App.Vector(-27.2, 123.9, 0), App.Vector(0, 0, 1), 1.7),
    Part.Circle(App.Vector(-27.2, 89.4, 0), App.Vector(0, 0, 1), 1.7),
    Part.Circle(App.Vector(27.2, 89.4, 0), App.Vector(0, 0, 1), 1.7),
    Part.Circle(App.Vector(27.2, 123.9, 0), App.Vector(0, 0, 1), 1.7),
], False)
sketch16.addConstraint([
    Sketcher.Constraint("Equal", 0, 1),
    Sketcher.Constraint("Equal", 1, 2),
    Sketcher.Constraint("Equal", 2, 3),
    Sketcher.Constraint("Symmetric", 1, 3, 2, 3, -2),
    Sketcher.Constraint("Symmetric", 0, 3, 3, 3, -2),
    Sketcher.Constraint("Vertical", 0, 3, 1, 3),
    Sketcher.Constraint("Diameter", 0, Q("0.13 in")),
    Sketcher.Constraint("DistanceX", 0, 3, -1, 1, 27.25),
    Sketcher.Constraint("DistanceY", -1, 1, 0, 3, 123.93),
    Sketcher.Constraint("DistanceY", -1, 1, 1, 3, 89.43),
])
pocket14 = body.newObject("PartDesign::Pocket", "Pocket013")
pocket14.Profile = sketch16
pocket14.Type = "ThroughAll"
pocket14.Reversed = True

# Sketch on XZ plane
sketch17 = body.newObject("Sketcher::SketchObject", "Sketch016")
sketch17.AttachmentSupport = (doc.getObject("XZ_Plane"), [""])
sketch17.MapMode = "FlatFace"
sketch17.AttachmentOffset = App.Placement(App.Vector(0, 0, -0.2 * 25.4), App.Rotation())
sketch17.addGeometry([
    Part.Circle(App.Vector(101.6, 124.7, 0), App.Vector(0, 0, 1), 1.7),
    Part.Circle(App.Vector(35.6, 124.7, 0), App.Vector(0, 0, 1), 1.7),
    Part.Circle(App.Vector(35.6, 78.7, 0), App.Vector(0, 0, 1), 1.7),
    Part.Circle(App.Vector(101.6, 78.7, 0), App.Vector(0, 0, 1), 1.7),
], False)
sketch17.addConstraint([
    Sketcher.Constraint("Equal", 0, 1),
    Sketcher.Constraint("Equal", 1, 2),
    Sketcher.Constraint("Equal", 2, 3),
    Sketcher.Constraint("Horizontal", 0, 3, 1, 3),
    Sketcher.Constraint("Horizontal", 2, 3, 3, 3),
    Sketcher.Constraint("Vertical", 1, 3, 2, 3),
    Sketcher.Constraint("Vertical", 0, 3, 3, 3),
    Sketcher.Constraint("Diameter", 0, Q("0.13 in")),
    Sketcher.Constraint("DistanceX", -1, 1, 0, 3, Q("4 in")),
    Sketcher.Constraint("DistanceY", -1, 1, 2, 3, Q("3.1 in")),
    Sketcher.Constraint("DistanceY", -1, 1, 0, 3, 124.74),
    Sketcher.Constraint("DistanceX", -1, 1, 1, 3, 35.6),
])
pocket15 = body.newObject("PartDesign::Pocket", "Pocket014")
pocket15.Profile = sketch17
pocket15.Type = "ThroughAll"
pocket15.Reversed = True

# Sketch on XZ plane
sketch18 = body.newObject("Sketcher::SketchObject", "Sketch017")
sketch18.AttachmentSupport = (doc.getObject("XZ_Plane"), [""])
sketch18.MapMode = "FlatFace"
sketch18.AttachmentOffset = App.Placement(App.Vector(0, 0, -0.2 * 25.4), App.Rotation())
sketch18.addGeometry([
    Part.Circle(App.Vector(65.8, -35.6, 0), App.Vector(0, 0, 1), 1.7),
    Part.Circle(App.Vector(111.8, -35.6, 0), App.Vector(0, 0, 1), 1.7),
    Part.Circle(App.Vector(111.8, -101.6, 0), App.Vector(0, 0, 1), 1.7),
    Part.Circle(App.Vector(65.8, -101.6, 0), App.Vector(0, 0, 1), 1.7),
], False)
sketch18.addConstraint([
    Sketcher.Constraint("Equal", 0, 1),
    Sketcher.Constraint("Equal", 1, 2),
    Sketcher.Constraint("Equal", 2, 3),
    Sketcher.Constraint("Horizontal", 0, 3, 1, 3),
    Sketcher.Constraint("Horizontal", 2, 3, 3, 3),
    Sketcher.Constraint("Vertical", 1, 3, 2, 3),
    Sketcher.Constraint("Vertical", 0, 3, 3, 3),
    Sketcher.Constraint("Diameter", 0, Q("0.13 in")),
    Sketcher.Constraint("DistanceY", 2, 3, -1, 1, Q("4 in")),
    Sketcher.Constraint("DistanceX", -1, 1, 1, 3, Q("4.4 in")),
    Sketcher.Constraint("DistanceX", -1, 1, 0, 3, 65.76),
    Sketcher.Constraint("DistanceY", 0, 3, -1, 1, 35.6),
])
pocket16 = body.newObject("PartDesign::Pocket", "Pocket015")
pocket16.Profile = sketch18
pocket16.Type = "ThroughAll"
pocket16.Reversed = True

doc.recompute()
